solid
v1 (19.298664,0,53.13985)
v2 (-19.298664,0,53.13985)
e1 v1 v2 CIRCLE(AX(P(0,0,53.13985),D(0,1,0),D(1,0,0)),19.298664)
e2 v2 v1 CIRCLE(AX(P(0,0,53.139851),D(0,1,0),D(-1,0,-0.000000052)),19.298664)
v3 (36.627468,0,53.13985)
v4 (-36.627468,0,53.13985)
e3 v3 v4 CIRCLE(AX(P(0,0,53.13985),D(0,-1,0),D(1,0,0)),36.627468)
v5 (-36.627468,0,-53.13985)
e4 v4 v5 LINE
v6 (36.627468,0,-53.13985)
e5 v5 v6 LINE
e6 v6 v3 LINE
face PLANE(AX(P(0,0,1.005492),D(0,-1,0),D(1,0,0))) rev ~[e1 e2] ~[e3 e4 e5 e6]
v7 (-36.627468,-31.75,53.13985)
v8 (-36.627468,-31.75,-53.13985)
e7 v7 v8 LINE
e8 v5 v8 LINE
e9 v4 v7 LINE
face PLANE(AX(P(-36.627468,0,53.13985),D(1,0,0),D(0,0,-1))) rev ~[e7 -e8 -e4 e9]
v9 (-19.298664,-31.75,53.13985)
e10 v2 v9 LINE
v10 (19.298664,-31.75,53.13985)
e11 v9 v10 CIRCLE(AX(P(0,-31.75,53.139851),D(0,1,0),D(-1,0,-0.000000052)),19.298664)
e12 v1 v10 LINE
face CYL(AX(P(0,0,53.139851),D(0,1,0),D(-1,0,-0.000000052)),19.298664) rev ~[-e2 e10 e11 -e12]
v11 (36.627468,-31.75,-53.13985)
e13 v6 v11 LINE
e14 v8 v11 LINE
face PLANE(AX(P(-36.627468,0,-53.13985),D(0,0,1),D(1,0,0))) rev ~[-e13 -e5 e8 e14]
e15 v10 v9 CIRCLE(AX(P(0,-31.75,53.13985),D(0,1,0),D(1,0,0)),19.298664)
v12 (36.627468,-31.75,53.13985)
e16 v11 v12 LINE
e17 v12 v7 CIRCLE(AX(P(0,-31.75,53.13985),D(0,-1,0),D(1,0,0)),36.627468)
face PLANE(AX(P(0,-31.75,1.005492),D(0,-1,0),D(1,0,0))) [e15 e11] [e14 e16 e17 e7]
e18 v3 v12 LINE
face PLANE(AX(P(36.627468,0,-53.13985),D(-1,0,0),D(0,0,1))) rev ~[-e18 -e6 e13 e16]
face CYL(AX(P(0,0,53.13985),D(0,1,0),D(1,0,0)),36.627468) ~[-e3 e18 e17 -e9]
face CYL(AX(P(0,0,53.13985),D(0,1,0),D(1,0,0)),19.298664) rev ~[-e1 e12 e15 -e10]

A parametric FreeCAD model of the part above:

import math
import FreeCAD as App
import Part
import Sketcher
from FreeCAD import Vector
Q = App.Units.Quantity

doc = App.newDocument("Part")
body = doc.addObject("PartDesign::Body", "Body")

# Sketch on XZ plane
sketch1 = body.newObject("Sketcher::SketchObject", "Sketch")
sketch1.AttachmentSupport = (doc.getObject("XZ_Plane"), [""])
sketch1.MapMode = "FlatFace"
sketch1.addGeometry([
    Part.LineSegment(Vector(37, -53, 0), Vector(37, 53, 0)),  # 0
    Part.ArcOfCircle(Part.Circle(Vector(0, 53, 0), Vector(0, 0, 1), 37), math.radians(0), math.radians(180)),  # 1
    Part.LineSegment(Vector(-37, 53, 0), Vector(-37, -53, 0)),  # 2
    Part.LineSegment(Vector(-37, -53, 0), Vector(37, -53, 0)),  # 3
    Part.ArcOfCircle(Part.Circle(Vector(0, 53, 0), Vector(0, 0, 1), 19), math.radians(180), math.radians(360)),  # 4
    Part.ArcOfCircle(Part.Circle(Vector(0, 53, 0), Vector(0, 0, 1), 19), math.radians(0), math.radians(180)),  # 5
], False)
sketch1.addConstraint([
    Sketcher.Constraint("Tangent", 0, 2, 1, 1),
    Sketcher.Constraint("Tangent", 1, 2, 2, 1),
    Sketcher.Constraint("Coincident", 2, 2, 3, 1),
    Sketcher.Constraint("Coincident", 3, 2, 0, 1),
    Sketcher.Constraint("Tangent", 4, 1, 5, 2),
    Sketcher.Constraint("Coincident", 5, 1, 4, 2),
    Sketcher.Constraint("Vertical", 0),
    Sketcher.Constraint("Vertical", 2),
    Sketcher.Constraint("Horizontal", 3),
    Sketcher.Constraint("Coincident", 4, 3, 1, 3),
    Sketcher.Constraint("Symmetric", 0, 2, 2, 2, -1, 1),
    Sketcher.Constraint("Horizontal", 1, 2, 4, 1),
    Sketcher.Constraint("Horizontal", 4, 1, 5, 1),
    Sketcher.Constraint("DistanceY", 0, 1, 0, 2, Q("106.2797 mm")),
    Sketcher.Constraint("Radius", 1, Q("36.627468 mm")),
    Sketcher.Constraint("Radius", 4, Q("19.298664 mm")),
])
pad1 = body.newObject("PartDesign::Pad", "Pad")
pad1.Profile = sketch1
pad1.Length = Q("1.25 in")

doc.recompute()
